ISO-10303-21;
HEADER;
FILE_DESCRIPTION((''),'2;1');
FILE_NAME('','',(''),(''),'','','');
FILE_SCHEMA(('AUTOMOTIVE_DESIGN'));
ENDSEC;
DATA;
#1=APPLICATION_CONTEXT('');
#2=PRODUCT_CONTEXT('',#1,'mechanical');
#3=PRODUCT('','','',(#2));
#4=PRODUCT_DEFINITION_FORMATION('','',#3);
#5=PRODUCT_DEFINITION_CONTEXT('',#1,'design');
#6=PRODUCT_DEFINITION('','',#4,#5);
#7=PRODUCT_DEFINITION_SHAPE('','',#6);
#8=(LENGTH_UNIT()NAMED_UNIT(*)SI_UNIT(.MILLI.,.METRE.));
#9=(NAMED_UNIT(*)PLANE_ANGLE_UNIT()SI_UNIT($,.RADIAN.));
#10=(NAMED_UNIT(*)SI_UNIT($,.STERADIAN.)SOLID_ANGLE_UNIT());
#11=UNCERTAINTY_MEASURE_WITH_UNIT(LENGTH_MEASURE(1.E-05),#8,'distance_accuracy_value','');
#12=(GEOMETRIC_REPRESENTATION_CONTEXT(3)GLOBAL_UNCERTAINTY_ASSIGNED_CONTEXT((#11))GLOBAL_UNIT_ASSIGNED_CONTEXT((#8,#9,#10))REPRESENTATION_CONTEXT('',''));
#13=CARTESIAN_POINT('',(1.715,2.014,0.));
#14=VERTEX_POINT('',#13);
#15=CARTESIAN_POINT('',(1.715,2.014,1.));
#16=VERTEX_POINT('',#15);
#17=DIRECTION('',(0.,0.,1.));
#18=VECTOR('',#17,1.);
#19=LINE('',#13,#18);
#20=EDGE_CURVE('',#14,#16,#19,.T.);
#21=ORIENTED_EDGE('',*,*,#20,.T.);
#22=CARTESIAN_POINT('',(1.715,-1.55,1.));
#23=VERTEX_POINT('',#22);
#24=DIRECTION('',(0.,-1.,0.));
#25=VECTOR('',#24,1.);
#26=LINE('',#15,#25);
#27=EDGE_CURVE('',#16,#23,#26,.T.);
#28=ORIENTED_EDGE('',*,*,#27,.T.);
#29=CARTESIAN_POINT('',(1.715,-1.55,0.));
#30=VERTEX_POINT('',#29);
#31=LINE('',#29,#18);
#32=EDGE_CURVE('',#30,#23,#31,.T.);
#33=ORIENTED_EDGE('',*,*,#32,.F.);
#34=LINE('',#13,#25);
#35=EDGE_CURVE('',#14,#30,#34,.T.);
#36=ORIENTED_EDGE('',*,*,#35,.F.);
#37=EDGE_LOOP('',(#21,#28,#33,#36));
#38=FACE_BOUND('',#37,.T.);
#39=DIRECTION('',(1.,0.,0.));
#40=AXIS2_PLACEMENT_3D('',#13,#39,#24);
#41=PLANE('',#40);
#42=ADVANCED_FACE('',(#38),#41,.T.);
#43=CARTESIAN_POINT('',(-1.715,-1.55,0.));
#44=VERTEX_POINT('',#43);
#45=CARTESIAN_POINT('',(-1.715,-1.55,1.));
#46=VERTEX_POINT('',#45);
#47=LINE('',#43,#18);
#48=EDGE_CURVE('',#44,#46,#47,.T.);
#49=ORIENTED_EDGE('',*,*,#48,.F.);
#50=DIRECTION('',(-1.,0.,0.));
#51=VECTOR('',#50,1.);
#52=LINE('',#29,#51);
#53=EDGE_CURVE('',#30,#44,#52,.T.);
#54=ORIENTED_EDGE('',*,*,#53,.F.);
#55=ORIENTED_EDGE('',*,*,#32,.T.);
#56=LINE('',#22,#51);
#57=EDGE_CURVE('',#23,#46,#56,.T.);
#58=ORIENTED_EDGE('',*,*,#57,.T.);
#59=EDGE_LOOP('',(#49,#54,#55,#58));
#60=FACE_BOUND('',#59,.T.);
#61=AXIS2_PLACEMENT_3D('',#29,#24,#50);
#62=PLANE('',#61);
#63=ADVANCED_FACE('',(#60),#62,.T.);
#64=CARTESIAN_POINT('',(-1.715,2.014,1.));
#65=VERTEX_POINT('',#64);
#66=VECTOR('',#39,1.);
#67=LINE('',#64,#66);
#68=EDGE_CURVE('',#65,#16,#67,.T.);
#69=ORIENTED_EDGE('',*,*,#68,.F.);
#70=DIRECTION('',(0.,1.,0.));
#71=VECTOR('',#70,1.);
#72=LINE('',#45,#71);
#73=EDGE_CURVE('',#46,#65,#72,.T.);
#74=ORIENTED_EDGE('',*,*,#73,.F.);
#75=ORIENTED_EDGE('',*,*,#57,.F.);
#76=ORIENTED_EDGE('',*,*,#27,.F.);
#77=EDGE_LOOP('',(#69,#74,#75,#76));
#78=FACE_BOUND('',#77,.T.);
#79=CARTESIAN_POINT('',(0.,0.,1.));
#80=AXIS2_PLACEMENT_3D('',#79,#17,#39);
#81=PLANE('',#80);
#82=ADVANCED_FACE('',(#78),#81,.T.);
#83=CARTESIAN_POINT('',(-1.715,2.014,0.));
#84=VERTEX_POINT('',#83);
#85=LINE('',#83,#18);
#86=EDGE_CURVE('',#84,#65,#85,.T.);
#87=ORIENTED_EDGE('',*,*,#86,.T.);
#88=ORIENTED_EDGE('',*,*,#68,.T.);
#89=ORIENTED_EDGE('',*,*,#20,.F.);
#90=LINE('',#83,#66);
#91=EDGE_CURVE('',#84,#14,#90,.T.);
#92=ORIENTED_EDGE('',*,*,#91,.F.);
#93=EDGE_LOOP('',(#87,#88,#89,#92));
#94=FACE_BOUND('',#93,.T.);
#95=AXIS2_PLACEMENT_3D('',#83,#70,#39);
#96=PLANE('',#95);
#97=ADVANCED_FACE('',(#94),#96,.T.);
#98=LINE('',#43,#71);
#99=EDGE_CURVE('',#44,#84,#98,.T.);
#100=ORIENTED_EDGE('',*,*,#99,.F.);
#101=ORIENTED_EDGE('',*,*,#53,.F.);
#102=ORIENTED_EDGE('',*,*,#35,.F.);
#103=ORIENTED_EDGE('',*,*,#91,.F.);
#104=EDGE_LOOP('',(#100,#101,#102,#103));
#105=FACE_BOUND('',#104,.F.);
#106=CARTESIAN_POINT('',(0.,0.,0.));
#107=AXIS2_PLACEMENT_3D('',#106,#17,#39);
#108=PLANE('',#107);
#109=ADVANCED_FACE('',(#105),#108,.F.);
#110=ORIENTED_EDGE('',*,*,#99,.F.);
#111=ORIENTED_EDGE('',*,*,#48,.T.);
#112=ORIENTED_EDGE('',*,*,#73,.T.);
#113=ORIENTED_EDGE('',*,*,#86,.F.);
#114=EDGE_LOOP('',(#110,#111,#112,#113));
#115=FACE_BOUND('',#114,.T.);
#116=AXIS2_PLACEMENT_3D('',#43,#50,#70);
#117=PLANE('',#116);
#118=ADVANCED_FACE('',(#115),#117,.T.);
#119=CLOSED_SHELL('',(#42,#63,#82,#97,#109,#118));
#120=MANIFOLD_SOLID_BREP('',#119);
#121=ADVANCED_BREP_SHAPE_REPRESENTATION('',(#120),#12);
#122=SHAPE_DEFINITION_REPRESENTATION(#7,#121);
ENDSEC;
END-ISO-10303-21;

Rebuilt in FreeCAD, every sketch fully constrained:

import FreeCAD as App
import Part
import Sketcher


def add_polygon(sketch, points):
    """Adds a closed chain of lines whose ends are joined by coincident constraints."""
    first, n = sketch.GeometryCount, len(points)
    for a, b in zip(points, points[1:] + points[:1]):
        sketch.addGeometry(Part.LineSegment(App.Vector(*a, 0), App.Vector(*b, 0)), False)
    for i in range(n):
        sketch.addConstraint(Sketcher.Constraint("Coincident", first + i, 2, first + (i + 1) % n, 1))

doc = App.newDocument("Part")
body = doc.addObject("PartDesign::Body", "Body")

# Sketch on XY plane
sketch1 = body.newObject("Sketcher::SketchObject", "Sketch")
sketch1.AttachmentSupport = (doc.getObject("XY_Plane"), [""])
sketch1.MapMode = "FlatFace"
add_polygon(sketch1, [(-1.7, 2), (-1.7, -1.6), (1.7, -1.6), (1.7, 2)])  # lines 0-3
sketch1.addConstraint(Sketcher.Constraint("Vertical", 0))
sketch1.addConstraint(Sketcher.Constraint("Horizontal", 1))
sketch1.addConstraint(Sketcher.Constraint("Vertical", 2))
sketch1.addConstraint(Sketcher.Constraint("Horizontal", 3))
sketch1.addConstraint(Sketcher.Constraint("DistanceX", 1, 1, 1, 2, 3.43))
sketch1.addConstraint(Sketcher.Constraint("DistanceY", 0, 2, 0, 1, 3.564))
sketch1.addConstraint(Sketcher.Constraint("DistanceY", 0, 2, -1, 1, 1.55))
sketch1.addConstraint(Sketcher.Constraint("DistanceX", 0, 2, -1, 1, 1.715))
pad1 = body.newObject("PartDesign::Pad", "Pad")
pad1.Profile = sketch1
pad1.Length = 1

doc.recompute()
